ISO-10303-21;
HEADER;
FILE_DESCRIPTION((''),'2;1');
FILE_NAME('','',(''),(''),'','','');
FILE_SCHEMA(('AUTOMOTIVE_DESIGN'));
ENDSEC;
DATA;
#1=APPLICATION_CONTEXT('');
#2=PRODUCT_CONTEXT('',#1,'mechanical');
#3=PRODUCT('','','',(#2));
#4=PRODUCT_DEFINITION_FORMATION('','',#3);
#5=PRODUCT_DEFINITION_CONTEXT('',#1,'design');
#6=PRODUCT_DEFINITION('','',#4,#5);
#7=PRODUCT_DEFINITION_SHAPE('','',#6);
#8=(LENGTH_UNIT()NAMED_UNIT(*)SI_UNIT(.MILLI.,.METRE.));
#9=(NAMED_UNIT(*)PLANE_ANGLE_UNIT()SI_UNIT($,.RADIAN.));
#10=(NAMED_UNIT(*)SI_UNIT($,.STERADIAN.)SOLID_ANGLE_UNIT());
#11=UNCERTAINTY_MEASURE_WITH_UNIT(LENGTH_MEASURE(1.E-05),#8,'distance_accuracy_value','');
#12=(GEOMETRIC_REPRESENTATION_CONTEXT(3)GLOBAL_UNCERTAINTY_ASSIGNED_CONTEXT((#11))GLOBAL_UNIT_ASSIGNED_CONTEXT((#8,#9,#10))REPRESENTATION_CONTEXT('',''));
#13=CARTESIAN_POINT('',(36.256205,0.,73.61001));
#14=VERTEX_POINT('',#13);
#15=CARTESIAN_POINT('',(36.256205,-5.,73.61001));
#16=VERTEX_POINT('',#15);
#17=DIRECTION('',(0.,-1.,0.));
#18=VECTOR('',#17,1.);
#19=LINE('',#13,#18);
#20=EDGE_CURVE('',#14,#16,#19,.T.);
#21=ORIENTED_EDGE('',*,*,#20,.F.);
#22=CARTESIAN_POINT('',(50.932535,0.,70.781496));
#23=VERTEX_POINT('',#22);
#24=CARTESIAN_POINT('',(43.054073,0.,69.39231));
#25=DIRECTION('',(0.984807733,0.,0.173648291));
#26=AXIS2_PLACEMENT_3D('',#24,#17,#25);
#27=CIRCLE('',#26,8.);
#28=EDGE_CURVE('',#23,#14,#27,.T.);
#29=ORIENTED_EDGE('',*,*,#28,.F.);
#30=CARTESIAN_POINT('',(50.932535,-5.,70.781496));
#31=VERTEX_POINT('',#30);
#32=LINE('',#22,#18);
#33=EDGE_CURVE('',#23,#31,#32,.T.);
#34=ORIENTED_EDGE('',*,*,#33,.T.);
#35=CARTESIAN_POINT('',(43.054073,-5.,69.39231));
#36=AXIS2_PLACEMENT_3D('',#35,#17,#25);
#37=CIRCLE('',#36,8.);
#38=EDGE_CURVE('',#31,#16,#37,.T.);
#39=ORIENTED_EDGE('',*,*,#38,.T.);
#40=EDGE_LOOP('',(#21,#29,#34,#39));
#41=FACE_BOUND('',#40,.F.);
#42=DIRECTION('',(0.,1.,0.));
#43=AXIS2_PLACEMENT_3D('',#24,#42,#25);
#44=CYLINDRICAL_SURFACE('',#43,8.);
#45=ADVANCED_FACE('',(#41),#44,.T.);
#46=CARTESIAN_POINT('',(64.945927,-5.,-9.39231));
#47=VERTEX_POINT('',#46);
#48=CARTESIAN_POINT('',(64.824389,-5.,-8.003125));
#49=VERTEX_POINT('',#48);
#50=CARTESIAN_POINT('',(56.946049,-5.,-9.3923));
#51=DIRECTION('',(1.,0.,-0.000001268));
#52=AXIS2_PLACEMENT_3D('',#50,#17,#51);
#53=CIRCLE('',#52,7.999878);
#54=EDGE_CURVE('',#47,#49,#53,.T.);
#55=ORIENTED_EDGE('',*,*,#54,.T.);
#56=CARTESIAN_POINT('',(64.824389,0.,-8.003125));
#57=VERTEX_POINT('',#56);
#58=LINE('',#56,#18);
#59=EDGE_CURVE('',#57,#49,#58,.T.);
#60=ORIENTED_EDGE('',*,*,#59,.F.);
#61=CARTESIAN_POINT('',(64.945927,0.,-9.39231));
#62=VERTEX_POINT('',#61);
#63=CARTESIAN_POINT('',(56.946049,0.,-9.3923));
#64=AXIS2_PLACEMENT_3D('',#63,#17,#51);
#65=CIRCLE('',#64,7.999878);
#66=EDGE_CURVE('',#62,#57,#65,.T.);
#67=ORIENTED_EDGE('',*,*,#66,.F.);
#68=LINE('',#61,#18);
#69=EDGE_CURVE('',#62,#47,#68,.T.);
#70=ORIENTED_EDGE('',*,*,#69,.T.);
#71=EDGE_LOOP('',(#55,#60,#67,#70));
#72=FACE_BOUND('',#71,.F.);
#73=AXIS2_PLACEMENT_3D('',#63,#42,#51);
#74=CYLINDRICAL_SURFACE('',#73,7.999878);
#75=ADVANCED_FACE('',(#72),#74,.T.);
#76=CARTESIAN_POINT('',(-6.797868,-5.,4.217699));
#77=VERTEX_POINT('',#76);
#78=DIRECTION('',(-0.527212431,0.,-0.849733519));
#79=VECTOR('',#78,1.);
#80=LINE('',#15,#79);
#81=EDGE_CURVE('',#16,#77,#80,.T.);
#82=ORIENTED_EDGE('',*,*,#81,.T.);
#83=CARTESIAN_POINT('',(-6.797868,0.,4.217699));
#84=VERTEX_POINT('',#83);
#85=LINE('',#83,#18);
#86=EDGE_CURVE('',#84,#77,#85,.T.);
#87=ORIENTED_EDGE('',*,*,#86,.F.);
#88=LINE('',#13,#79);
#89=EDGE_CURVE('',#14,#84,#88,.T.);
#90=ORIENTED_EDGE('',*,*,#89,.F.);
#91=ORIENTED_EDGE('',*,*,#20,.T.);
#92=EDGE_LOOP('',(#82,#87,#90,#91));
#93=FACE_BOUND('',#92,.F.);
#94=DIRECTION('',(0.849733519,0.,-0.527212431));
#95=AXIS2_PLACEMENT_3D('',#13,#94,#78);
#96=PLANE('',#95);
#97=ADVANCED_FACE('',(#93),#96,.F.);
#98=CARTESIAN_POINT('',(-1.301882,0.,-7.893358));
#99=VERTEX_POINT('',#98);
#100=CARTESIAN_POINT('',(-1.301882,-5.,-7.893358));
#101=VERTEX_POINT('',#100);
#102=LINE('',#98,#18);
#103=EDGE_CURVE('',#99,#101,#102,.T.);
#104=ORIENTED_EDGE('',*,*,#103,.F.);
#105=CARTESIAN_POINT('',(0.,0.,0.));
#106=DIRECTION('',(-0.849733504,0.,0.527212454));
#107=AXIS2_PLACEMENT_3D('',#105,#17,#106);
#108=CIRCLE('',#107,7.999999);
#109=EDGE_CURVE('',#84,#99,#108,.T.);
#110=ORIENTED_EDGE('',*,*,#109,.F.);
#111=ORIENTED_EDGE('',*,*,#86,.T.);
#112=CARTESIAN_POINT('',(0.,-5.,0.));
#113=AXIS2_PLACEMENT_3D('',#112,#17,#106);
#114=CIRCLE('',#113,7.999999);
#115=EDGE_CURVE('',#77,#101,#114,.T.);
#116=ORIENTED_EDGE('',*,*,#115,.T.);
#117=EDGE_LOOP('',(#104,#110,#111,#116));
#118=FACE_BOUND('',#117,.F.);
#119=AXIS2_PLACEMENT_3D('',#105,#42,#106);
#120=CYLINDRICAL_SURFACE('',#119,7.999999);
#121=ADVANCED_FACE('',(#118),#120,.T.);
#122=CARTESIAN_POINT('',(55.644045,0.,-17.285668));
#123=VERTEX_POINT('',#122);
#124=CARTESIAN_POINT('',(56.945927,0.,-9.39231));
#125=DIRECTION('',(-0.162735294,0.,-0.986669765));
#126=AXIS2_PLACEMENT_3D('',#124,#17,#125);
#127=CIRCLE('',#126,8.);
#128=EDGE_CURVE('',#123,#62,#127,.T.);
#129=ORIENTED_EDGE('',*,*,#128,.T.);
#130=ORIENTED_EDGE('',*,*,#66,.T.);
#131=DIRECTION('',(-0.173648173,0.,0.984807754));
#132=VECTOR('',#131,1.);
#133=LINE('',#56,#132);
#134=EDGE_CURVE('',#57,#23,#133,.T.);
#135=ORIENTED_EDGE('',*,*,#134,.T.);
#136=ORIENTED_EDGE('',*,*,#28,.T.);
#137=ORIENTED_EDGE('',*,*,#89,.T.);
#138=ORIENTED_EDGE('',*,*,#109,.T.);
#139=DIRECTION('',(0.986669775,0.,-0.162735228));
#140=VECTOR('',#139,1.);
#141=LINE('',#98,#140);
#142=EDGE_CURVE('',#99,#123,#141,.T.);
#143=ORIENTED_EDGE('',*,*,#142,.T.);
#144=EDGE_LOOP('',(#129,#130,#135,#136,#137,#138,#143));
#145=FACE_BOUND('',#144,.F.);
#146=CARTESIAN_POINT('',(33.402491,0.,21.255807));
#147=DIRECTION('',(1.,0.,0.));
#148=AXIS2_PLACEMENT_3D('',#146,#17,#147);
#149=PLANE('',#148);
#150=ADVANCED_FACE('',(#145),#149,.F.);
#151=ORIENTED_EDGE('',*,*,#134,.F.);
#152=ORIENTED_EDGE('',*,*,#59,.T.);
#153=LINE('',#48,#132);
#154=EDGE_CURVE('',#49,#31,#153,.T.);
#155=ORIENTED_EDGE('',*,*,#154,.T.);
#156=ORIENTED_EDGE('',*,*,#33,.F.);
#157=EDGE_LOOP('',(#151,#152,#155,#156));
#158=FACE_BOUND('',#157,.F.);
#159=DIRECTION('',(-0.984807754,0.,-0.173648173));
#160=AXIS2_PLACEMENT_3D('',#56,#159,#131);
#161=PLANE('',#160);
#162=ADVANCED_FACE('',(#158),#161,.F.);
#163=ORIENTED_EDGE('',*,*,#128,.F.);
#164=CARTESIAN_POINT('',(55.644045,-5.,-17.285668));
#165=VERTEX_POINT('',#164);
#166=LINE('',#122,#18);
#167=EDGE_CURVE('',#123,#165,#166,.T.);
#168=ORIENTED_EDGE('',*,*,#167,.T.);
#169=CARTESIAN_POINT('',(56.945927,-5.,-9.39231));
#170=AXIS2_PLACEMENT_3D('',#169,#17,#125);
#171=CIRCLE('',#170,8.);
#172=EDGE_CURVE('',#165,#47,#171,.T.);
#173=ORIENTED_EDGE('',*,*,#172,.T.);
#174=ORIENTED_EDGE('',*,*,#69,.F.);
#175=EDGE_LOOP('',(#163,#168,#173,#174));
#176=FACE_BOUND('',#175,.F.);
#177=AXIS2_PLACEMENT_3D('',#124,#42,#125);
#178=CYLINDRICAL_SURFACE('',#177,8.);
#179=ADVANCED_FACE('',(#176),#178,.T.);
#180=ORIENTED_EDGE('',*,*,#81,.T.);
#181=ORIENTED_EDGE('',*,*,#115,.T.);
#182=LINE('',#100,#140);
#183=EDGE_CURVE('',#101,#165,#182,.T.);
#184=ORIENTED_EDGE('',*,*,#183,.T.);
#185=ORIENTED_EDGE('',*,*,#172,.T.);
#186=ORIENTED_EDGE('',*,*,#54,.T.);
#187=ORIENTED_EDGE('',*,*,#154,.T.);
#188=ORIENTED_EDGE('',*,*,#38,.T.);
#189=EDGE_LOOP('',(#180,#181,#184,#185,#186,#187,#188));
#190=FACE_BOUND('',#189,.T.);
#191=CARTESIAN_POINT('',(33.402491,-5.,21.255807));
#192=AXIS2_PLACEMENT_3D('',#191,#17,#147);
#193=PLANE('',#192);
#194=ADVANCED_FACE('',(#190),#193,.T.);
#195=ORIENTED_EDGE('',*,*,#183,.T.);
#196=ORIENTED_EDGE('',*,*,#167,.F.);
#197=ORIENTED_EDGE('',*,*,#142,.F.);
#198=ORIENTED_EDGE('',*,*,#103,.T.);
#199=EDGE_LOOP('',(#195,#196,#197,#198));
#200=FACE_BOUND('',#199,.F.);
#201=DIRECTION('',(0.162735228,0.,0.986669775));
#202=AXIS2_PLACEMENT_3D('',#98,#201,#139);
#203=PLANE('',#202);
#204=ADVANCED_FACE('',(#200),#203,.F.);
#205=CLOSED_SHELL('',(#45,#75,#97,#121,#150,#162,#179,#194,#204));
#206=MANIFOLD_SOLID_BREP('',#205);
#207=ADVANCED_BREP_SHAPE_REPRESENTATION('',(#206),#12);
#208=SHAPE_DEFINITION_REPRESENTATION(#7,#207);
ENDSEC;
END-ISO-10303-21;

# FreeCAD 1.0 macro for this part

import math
import FreeCAD as App
import Part
import Sketcher
Q = App.Units.Quantity

doc = App.newDocument("Part")
params = doc.addObject("Spreadsheet::Sheet", "Params")
for row, (alias, value) in enumerate([
    ("sketch1_radius", "8 mm"),
    ("sketch1_length", "80.000001 mm"),
    ("pad1_length", "5 mm"),
], start=1):
    params.set(f"A{row}", alias)
    params.set(f"B{row}", "=" + value)
    params.setAlias(f"B{row}", alias)

body = doc.addObject("PartDesign::Body", "Body")

# Sketch on XZ plane
sketch1 = doc.addObject("Sketcher::SketchObject", "Sketch")
body.addObject(sketch1)
sketch1.AttachmentSupport = (doc.XZ_Plane, [""])
sketch1.MapMode = "FlatFace"
sketch1.addGeometry(Part.LineSegment(App.Vector(-1.301882, -7.893358, 0), App.Vector(55.644045, -17.285668, 0)), False)
sketch1.addGeometry(Part.ArcOfCircle(Part.Circle(App.Vector(56.945927, -9.39231, 0), App.Vector(0, 0, 1), 8), math.radians(-99.365698), math.radians(0.000001)), False)
sketch1.addGeometry(Part.ArcOfCircle(Part.Circle(App.Vector(56.946049, -9.3923, 0), App.Vector(0, 0, 1), 7.999878), math.radians(-0.000073), math.radians(10.000078)), False)
sketch1.addGeometry(Part.LineSegment(App.Vector(64.824389, -8.003125, 0), App.Vector(50.932535, 70.781496, 0)), False)
sketch1.addGeometry(Part.ArcOfCircle(Part.Circle(App.Vector(43.054073, 69.39231, 0), App.Vector(0, 0, 1), 8), math.radians(10.000007), math.radians(148.182691)), False)
sketch1.addGeometry(Part.LineSegment(App.Vector(36.256205, 73.61001, 0), App.Vector(-6.797868, 4.217699, 0)), False)
sketch1.addGeometry(Part.ArcOfCircle(Part.Circle(App.Vector(0, 0, 0), App.Vector(0, 0, 1), 7.999999), math.radians(148.182696), math.radians(260.634307)), False)
sketch1.addConstraint(Sketcher.Constraint("Tangent", 0, 2, 1, 1))
sketch1.addConstraint(Sketcher.Constraint("Tangent", 1, 2, 2, 1))
sketch1.addConstraint(Sketcher.Constraint("Tangent", 2, 2, 3, 1))
sketch1.addConstraint(Sketcher.Constraint("Tangent", 3, 2, 4, 1))
sketch1.addConstraint(Sketcher.Constraint("Tangent", 4, 2, 5, 1))
sketch1.addConstraint(Sketcher.Constraint("Tangent", 5, 2, 6, 1))
sketch1.addConstraint(Sketcher.Constraint("Tangent", 6, 2, 0, 1))
sketch1.addConstraint(Sketcher.Constraint("Coincident", 6, 3, -1, 1))
sketch1.addConstraint(Sketcher.Constraint("Equal", 1, 4))
sketch1.addConstraint(Sketcher.Constraint("Equal", 4, 6))
sketch1.addConstraint(Sketcher.Constraint("Radius", 1, 8.0))
sketch1.addConstraint(Sketcher.Constraint("Angle", 3, Q("100 deg")))
sketch1.addConstraint(Sketcher.Constraint("Distance", 3, 80.000001))
sketch1.addConstraint(Sketcher.Constraint("DistanceY", 2, 3, 5, 2, 13.609999))
sketch1.addConstraint(Sketcher.Constraint("Radius", 2, 7.999878))
sketch1.addConstraint(Sketcher.Constraint("DistanceY", 2, 3, -1, 1, 9.3923))
sketch1.addConstraint(Sketcher.Constraint("DistanceY", 1, 2, -1, 1, 9.39231))
sketch1.setExpression("Constraints[10]", "Params.sketch1_radius")
sketch1.setExpression("Constraints[12]", "Params.sketch1_length")
pad1 = doc.addObject("PartDesign::Pad", "Pad")
body.addObject(pad1)
pad1.Profile = sketch1
pad1.setExpression("Length", "Params.pad1_length")

doc.recompute()
